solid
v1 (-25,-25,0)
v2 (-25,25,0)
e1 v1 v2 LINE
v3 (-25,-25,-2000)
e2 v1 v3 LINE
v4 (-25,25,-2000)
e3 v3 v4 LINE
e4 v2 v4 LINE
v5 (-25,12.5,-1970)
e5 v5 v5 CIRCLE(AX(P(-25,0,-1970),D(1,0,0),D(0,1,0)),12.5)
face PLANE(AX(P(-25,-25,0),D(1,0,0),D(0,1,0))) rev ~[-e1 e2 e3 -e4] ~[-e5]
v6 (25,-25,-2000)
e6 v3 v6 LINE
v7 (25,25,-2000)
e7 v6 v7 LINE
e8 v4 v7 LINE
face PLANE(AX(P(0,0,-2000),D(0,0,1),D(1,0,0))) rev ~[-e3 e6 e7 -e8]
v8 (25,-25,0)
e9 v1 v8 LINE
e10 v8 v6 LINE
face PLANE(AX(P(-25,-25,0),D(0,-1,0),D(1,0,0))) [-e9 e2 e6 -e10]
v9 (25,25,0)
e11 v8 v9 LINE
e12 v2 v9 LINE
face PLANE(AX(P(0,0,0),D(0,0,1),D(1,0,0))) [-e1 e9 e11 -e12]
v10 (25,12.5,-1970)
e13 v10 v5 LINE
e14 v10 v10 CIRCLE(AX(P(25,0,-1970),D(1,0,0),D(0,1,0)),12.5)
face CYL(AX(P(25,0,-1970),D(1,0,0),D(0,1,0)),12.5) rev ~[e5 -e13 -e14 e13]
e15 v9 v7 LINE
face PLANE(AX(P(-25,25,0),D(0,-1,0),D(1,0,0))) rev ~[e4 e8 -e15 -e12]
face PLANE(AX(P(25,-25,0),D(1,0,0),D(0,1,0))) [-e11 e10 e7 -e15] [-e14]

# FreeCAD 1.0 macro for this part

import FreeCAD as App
import Part
import Sketcher
Q = App.Units.Quantity


def add_polygon(sketch, points):
    """Adds a closed chain of lines whose ends are joined by coincident constraints."""
    first, n = sketch.GeometryCount, len(points)
    for a, b in zip(points, points[1:] + points[:1]):
        sketch.addGeometry(Part.LineSegment(App.Vector(*a, 0), App.Vector(*b, 0)), False)
    for i in range(n):
        sketch.addConstraint(Sketcher.Constraint("Coincident", first + i, 2, first + (i + 1) % n, 1))

doc = App.newDocument("Part")
body = doc.addObject("PartDesign::Body", "Body")

sketch1 = doc.addObject("Sketcher::SketchObject", "Sketch")
body.addObject(sketch1)
sketch1.AttachmentSupport = (doc.XY_Plane, [""])
sketch1.MapMode = "FlatFace"
add_polygon(sketch1, [(-25, 25), (-25, -25), (25, -25), (25, 25)])
sketch1.addConstraint(Sketcher.Constraint("Vertical", 0))
sketch1.addConstraint(Sketcher.Constraint("Horizontal", 1))
sketch1.addConstraint(Sketcher.Constraint("Vertical", 2))
sketch1.addConstraint(Sketcher.Constraint("Horizontal", 3))
sketch1.addConstraint(Sketcher.Constraint("Symmetric", 0, 2, 2, 2, -1, 1))
sketch1.addConstraint(Sketcher.Constraint("Equal", 3, 0))
sketch1.addConstraint(Sketcher.Constraint("DistanceX", 1, 1, 1, 2, Q("50 mm")))
pad1 = doc.addObject("PartDesign::Pad", "Pad")
body.addObject(pad1)
pad1.Profile = sketch1
pad1.Length = 2000
pad1.Reversed = True

sketch2 = doc.addObject("Sketcher::SketchObject", "Sketch001")
body.addObject(sketch2)
sketch2.AttachmentSupport = (doc.YZ_Plane, [""])
sketch2.MapMode = "FlatFace"
sketch2.AttachmentOffset = App.Placement(App.Vector(0, 0, 25), App.Rotation())
sketch2.addGeometry(Part.Circle(App.Vector(0, -1970, 0), App.Vector(0, 0, 1), 12.5), False)
sketch2.addConstraint(Sketcher.Constraint("PointOnObject", 0, 3, -2))
sketch2.addConstraint(Sketcher.Constraint("Diameter", 0, Q("25 mm")))
sketch2.addConstraint(Sketcher.Constraint("DistanceY", 0, 3, -1, 1, Q("1970 mm")))
pocket1 = doc.addObject("PartDesign::Pocket", "Pocket")
body.addObject(pocket1)
pocket1.Profile = sketch2
pocket1.Type = "ThroughAll"

doc.recompute()
